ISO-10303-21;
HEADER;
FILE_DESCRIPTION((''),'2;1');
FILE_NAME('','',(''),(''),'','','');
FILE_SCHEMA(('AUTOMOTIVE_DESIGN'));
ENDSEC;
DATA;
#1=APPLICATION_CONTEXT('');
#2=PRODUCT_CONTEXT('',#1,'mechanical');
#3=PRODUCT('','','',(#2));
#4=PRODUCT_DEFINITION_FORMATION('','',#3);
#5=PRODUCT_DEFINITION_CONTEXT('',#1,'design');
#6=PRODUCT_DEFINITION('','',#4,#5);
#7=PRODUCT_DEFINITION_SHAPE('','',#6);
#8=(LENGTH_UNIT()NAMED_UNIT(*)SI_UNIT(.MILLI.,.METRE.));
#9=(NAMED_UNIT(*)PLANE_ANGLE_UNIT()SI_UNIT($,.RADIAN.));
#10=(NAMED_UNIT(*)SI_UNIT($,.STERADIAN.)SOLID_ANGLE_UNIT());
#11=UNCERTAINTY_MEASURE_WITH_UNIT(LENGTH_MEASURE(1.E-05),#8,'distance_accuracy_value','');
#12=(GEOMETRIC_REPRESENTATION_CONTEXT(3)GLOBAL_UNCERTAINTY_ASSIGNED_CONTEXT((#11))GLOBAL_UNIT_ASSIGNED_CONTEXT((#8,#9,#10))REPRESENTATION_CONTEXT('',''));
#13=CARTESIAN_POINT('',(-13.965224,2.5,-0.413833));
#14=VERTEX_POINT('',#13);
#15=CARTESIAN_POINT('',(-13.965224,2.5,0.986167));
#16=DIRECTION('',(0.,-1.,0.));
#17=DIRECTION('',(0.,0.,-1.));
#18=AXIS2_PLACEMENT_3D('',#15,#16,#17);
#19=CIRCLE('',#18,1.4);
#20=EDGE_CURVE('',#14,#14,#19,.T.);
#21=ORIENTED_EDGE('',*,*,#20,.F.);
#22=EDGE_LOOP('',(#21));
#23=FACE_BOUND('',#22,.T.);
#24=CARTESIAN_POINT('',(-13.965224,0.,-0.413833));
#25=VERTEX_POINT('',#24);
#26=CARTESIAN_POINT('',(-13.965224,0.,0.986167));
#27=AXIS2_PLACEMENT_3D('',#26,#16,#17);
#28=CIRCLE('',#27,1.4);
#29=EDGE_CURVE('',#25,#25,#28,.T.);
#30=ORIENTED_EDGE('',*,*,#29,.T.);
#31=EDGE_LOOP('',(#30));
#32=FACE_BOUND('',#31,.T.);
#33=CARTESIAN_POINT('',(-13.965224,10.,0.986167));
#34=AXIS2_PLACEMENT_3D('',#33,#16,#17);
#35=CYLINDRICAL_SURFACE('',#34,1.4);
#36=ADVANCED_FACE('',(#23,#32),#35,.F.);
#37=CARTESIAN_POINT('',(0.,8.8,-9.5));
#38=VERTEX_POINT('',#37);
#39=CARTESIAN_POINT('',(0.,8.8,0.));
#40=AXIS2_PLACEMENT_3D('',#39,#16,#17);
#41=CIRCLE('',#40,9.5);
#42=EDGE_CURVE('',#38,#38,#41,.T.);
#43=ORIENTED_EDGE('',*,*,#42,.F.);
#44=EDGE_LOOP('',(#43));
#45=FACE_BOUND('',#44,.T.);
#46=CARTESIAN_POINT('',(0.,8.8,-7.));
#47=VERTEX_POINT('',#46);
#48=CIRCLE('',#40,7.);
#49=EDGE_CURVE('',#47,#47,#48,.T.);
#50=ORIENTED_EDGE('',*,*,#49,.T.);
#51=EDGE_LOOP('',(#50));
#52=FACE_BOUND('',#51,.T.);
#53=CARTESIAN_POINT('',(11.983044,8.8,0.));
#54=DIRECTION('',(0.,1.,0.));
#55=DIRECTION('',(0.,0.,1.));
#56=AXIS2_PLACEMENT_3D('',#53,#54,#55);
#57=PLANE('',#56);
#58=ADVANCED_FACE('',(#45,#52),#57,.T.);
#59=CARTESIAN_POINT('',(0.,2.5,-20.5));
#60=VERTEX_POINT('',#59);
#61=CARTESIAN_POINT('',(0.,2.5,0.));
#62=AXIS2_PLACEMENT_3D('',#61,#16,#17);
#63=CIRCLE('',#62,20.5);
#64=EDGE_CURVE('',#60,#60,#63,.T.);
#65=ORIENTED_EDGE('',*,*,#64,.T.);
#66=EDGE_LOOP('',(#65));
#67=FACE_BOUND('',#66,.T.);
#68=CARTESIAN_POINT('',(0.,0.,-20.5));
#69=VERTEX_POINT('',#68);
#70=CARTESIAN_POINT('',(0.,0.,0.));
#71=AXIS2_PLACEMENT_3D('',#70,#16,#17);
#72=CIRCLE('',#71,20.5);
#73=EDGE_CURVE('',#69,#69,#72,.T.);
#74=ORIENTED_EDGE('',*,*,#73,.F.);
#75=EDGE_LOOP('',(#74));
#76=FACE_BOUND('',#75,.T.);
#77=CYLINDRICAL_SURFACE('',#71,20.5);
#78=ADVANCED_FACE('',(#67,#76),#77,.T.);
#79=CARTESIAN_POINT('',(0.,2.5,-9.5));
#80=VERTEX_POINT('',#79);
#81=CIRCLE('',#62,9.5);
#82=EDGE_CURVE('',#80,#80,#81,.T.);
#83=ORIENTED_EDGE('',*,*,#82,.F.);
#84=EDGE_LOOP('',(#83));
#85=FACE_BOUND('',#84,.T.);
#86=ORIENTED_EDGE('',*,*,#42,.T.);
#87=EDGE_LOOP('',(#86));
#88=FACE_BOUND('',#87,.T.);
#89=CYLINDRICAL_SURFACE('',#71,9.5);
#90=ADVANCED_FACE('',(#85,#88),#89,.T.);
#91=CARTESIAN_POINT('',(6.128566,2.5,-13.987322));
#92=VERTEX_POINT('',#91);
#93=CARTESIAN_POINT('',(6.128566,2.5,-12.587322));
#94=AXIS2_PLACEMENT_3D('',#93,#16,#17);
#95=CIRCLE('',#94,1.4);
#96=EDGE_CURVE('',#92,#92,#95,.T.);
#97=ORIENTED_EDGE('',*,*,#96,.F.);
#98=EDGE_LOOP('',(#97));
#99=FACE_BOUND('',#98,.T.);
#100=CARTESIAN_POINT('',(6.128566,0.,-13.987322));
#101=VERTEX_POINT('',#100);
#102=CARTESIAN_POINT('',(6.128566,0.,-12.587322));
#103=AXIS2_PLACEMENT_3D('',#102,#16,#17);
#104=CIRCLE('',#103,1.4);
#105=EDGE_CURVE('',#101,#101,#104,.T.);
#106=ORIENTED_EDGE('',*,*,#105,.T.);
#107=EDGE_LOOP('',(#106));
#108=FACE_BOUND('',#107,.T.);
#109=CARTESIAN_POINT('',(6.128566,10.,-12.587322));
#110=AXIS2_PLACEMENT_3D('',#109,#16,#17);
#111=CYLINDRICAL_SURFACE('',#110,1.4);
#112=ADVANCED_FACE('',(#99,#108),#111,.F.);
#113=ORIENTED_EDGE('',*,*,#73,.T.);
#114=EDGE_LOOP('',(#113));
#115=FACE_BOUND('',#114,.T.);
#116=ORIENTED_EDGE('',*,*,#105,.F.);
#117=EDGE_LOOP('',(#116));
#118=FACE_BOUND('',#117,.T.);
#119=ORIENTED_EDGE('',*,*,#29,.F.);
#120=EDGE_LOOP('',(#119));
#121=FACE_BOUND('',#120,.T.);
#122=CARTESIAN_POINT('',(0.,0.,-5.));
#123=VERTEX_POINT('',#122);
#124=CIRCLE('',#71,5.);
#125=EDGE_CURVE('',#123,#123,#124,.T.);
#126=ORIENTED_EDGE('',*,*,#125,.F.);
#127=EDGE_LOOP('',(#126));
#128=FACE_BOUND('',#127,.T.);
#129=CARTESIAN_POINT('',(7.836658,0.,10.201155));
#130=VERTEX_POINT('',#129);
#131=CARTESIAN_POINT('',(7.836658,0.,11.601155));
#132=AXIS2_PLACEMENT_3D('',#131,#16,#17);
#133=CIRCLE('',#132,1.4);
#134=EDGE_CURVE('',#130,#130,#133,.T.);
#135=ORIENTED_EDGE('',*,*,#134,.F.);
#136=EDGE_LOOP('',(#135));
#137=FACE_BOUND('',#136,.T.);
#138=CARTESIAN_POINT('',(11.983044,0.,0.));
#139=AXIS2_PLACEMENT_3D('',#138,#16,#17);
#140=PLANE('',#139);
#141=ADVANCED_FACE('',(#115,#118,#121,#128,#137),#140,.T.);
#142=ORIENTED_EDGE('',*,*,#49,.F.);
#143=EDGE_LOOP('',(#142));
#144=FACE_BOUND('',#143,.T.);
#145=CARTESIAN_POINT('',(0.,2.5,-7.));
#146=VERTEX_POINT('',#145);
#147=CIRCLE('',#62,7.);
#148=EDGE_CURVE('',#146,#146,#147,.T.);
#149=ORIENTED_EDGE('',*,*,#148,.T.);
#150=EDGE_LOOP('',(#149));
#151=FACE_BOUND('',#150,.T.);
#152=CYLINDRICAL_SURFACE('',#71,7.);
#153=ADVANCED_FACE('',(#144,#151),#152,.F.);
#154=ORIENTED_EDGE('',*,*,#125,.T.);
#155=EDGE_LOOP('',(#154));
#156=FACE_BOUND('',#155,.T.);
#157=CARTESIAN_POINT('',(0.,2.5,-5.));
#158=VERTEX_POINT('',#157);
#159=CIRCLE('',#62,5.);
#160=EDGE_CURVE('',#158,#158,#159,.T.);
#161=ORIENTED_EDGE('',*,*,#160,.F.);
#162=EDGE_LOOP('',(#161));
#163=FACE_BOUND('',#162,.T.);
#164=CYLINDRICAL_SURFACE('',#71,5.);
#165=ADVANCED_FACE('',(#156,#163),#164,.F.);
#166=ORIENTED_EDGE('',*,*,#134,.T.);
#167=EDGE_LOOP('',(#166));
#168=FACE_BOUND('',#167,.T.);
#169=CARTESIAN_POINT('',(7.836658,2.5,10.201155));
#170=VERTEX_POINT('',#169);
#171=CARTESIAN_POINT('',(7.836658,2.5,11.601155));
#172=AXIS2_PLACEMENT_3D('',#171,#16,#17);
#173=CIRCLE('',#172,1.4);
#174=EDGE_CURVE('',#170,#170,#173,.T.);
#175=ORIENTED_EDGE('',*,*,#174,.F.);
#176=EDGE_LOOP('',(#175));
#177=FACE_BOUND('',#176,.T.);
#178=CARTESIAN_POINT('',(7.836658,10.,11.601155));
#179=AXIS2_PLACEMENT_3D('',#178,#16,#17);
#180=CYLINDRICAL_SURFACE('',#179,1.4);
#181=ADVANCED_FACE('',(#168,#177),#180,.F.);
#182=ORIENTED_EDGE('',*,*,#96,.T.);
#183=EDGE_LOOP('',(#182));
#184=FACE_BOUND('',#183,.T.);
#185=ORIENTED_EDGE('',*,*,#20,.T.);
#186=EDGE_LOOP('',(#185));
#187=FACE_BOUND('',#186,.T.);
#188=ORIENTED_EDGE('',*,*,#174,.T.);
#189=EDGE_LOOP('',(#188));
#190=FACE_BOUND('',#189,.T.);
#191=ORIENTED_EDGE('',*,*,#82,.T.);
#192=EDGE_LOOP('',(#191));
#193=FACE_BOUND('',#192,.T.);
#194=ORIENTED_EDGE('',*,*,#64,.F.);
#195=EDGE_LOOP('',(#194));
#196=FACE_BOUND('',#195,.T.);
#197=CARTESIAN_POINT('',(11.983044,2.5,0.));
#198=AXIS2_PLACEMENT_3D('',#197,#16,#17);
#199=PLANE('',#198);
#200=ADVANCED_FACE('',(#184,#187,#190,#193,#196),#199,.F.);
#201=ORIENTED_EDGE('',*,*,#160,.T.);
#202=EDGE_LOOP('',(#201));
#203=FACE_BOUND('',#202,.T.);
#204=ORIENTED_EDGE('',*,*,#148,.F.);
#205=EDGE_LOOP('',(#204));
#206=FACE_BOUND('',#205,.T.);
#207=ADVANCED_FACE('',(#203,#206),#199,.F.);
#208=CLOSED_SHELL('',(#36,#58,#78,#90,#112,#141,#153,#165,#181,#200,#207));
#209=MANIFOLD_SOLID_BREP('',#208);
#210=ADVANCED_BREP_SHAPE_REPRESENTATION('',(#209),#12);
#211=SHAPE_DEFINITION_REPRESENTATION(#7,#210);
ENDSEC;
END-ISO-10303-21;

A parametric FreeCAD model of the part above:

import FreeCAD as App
import Part
import Sketcher

V = App.Vector


def add_polygon(sketch, points):
    """Adds a closed chain of lines whose ends are joined by coincident constraints."""
    first, n = sketch.GeometryCount, len(points)
    for a, b in zip(points, points[1:] + points[:1]):
        sketch.addGeometry(Part.LineSegment(App.Vector(*a, 0), App.Vector(*b, 0)), False)
    for i in range(n):
        sketch.addConstraint(Sketcher.Constraint("Coincident", first + i, 2, first + (i + 1) % n, 1))

doc = App.newDocument("Part")
body = doc.addObject("PartDesign::Body", "Body")

# Sketch on XY plane
sketch1 = body.newObject("Sketcher::SketchObject", "Sketch")
sketch1.AttachmentSupport = (doc.getObject("XY_Plane"), [""])
sketch1.MapMode = "FlatFace"
add_polygon(sketch1, [(5, 2.5), (5, 0), (20.5, 0), (20.5, 2.5), (9.5, 2.5), (9.5, 8.8), (7, 8.8), (7, 2.5)])  # lines 0-7
sketch1.addConstraint(Sketcher.Constraint("Vertical", 0))
sketch1.addConstraint(Sketcher.Constraint("Horizontal", 1))
sketch1.addConstraint(Sketcher.Constraint("Vertical", 2))
sketch1.addConstraint(Sketcher.Constraint("Horizontal", 3))
sketch1.addConstraint(Sketcher.Constraint("Vertical", 4))
sketch1.addConstraint(Sketcher.Constraint("Horizontal", 5))
sketch1.addConstraint(Sketcher.Constraint("Vertical", 6))
sketch1.addConstraint(Sketcher.Constraint("Horizontal", 7))
sketch1.addConstraint(Sketcher.Constraint("PointOnObject", 0, 2, -1))
sketch1.addConstraint(Sketcher.Constraint("Horizontal", 3, 2, 6, 2))
sketch1.addConstraint(Sketcher.Constraint("Equal", 5, 0))
sketch1.addConstraint(Sketcher.Constraint("DistanceX", 3, 2, 3, 1, 11.0))
sketch1.addConstraint(Sketcher.Constraint("DistanceX", 7, 2, 7, 1, 2.0))
sketch1.addConstraint(Sketcher.Constraint("DistanceX", 1, 1, 1, 2, 15.5))
sketch1.addConstraint(Sketcher.Constraint("DistanceY", 4, 1, 4, 2, 6.3))
sketch1.addConstraint(Sketcher.Constraint("DistanceX", -1, 1, 0, 2, 5.0))
revolution = body.newObject("PartDesign::Revolution", "Revolution")
revolution.Profile = sketch1
revolution.ReferenceAxis = (sketch1, ["V_Axis"])
revolution.Angle = 360

# Sketch on XZ plane
sketch2 = body.newObject("Sketcher::SketchObject", "Sketch001")
sketch2.AttachmentSupport = (doc.getObject("XZ_Plane"), [""])
sketch2.MapMode = "FlatFace"
sketch2.addGeometry(Part.Circle(V(-14, 1, 0), V(0, 0, 1), 1.4), False)
sketch2.addGeometry(Part.Circle(V(7.8, 11.6, 0), V(0, 0, 1), 1.4), False)
sketch2.addGeometry(Part.Circle(V(6.1, -12.6, 0), V(0, 0, 1), 1.4), False)
sketch2.addConstraint(Sketcher.Constraint("Equal", 0, 1))
sketch2.addConstraint(Sketcher.Constraint("Equal", 1, 2))
sketch2.addConstraint(Sketcher.Constraint("Diameter", 0, 2.8))
sketch2.addConstraint(Sketcher.Constraint("DistanceX", 0, 3, 1, 3, 21.801881))
sketch2.addConstraint(Sketcher.Constraint("DistanceX", 0, 3, 2, 3, 20.09379))
sketch2.addConstraint(Sketcher.Constraint("DistanceY", 2, 3, 0, 3, 13.573489))
sketch2.addConstraint(Sketcher.Constraint("DistanceX", 0, 3, -1, 1, 13.965224))
sketch2.addConstraint(Sketcher.Constraint("DistanceY", -1, 1, 0, 3, 0.986167))
sketch2.addConstraint(Sketcher.Constraint("DistanceY", -1, 1, 1, 3, 11.601155))
pocket1 = body.newObject("PartDesign::Pocket", "Pocket")
pocket1.Profile = sketch2
pocket1.Length = 10

doc.recompute()
